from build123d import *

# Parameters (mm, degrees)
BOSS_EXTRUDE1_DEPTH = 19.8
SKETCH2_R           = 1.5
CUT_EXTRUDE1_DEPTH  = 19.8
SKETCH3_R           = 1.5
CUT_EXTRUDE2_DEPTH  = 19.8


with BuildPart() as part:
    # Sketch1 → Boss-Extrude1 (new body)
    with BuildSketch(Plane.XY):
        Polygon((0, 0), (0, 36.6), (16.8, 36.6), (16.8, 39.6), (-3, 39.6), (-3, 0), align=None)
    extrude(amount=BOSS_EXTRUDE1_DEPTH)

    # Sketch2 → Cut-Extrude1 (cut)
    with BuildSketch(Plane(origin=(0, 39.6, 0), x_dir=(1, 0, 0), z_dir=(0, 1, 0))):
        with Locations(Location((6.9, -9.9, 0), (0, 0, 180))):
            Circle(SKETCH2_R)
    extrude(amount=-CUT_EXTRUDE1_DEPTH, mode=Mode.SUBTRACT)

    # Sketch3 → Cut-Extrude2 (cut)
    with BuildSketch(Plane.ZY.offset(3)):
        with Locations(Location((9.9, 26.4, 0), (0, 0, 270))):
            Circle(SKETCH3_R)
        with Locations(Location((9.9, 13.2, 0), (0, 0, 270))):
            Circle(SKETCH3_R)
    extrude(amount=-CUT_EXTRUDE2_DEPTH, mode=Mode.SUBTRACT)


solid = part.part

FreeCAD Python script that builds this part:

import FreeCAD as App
import Part
import Sketcher

V = App.Vector
Q = App.Units.Quantity


def add_polygon(sketch, points):
    """Adds a closed chain of lines whose ends are joined by coincident constraints."""
    first, n = sketch.GeometryCount, len(points)
    for a, b in zip(points, points[1:] + points[:1]):
        sketch.addGeometry(Part.LineSegment(App.Vector(*a, 0), App.Vector(*b, 0)), False)
    for i in range(n):
        sketch.addConstraint(Sketcher.Constraint("Coincident", first + i, 2, first + (i + 1) % n, 1))

doc = App.newDocument("Part")
body = doc.addObject("PartDesign::Body", "Body")

sketch1 = body.newObject("Sketcher::SketchObject", "Sketch")
sketch1.AttachmentSupport = (doc.getObject("XY_Plane"), [""])
sketch1.MapMode = "FlatFace"
add_polygon(sketch1, [(0, 0), (0, 36.6), (16.8, 36.6), (16.8, 39.6), (-3, 39.6), (-3, 0)])
sketch1.addConstraint([
    Sketcher.Constraint("Vertical", 0),
    Sketcher.Constraint("Horizontal", 1),
    Sketcher.Constraint("Vertical", 2),
    Sketcher.Constraint("Horizontal", 3),
    Sketcher.Constraint("Vertical", 4),
    Sketcher.Constraint("Horizontal", 5),
    Sketcher.Constraint("Coincident", 5, 2, -1, 1),
    Sketcher.Constraint("Equal", 5, 2),
    Sketcher.Constraint("DistanceX", 5, 1, 5, 2, Q("3 mm")),
    Sketcher.Constraint("DistanceX", 1, 1, 1, 2, Q("16.8 mm")),
    Sketcher.Constraint("DistanceY", 0, 1, 0, 2, Q("36.6 mm")),
])
pad1 = body.newObject("PartDesign::Pad", "Pad")
pad1.Profile = sketch1
pad1.Length = 19.8

sketch2 = body.newObject("Sketcher::SketchObject", "Sketch001")
sketch2.AttachmentSupport = (doc.getObject("XZ_Plane"), [""])
sketch2.MapMode = "FlatFace"
sketch2.AttachmentOffset = App.Placement(V(0, 0, -39.6), App.Rotation())
sketch2.addGeometry(Part.Circle(V(6.9, 9.9, 0), V(0, 0, 1), 1.5), False)
sketch2.addConstraint([
    Sketcher.Constraint("Diameter", 0, Q("3 mm")),
    Sketcher.Constraint("DistanceX", -1, 1, 0, 3, Q("6.9 mm")),
    Sketcher.Constraint("DistanceY", -1, 1, 0, 3, Q("9.9 mm")),
])
pocket1 = body.newObject("PartDesign::Pocket", "Pocket")
pocket1.Profile = sketch2
pocket1.Length = 19.8
pocket1.Reversed = True

sketch3 = body.newObject("Sketcher::SketchObject", "Sketch002")
sketch3.AttachmentSupport = (doc.getObject("YZ_Plane"), [""])
sketch3.MapMode = "FlatFace"
sketch3.AttachmentOffset = App.Placement(V(0, 0, -3), App.Rotation())
sketch3.addGeometry([
    Part.Circle(V(26.4, 9.9, 0), V(0, 0, 1), 1.5),
    Part.Circle(V(13.2, 9.9, 0), V(0, 0, 1), 1.5),
], False)
sketch3.addConstraint([
    Sketcher.Constraint("Equal", 0, 1),
    Sketcher.Constraint("Horizontal", 0, 3, 1, 3),
    Sketcher.Constraint("Diameter", 0, Q("3 mm")),
    Sketcher.Constraint("DistanceX", -1, 1, 0, 3, Q("26.4 mm")),
    Sketcher.Constraint("DistanceY", -1, 1, 0, 3, Q("9.9 mm")),
    Sketcher.Constraint("DistanceX", -1, 1, 1, 3, Q("13.2 mm")),
])
pocket2 = body.newObject("PartDesign::Pocket", "Pocket001")
pocket2.Profile = sketch3
pocket2.Length = 19.8
pocket2.Reversed = True

doc.recompute()
